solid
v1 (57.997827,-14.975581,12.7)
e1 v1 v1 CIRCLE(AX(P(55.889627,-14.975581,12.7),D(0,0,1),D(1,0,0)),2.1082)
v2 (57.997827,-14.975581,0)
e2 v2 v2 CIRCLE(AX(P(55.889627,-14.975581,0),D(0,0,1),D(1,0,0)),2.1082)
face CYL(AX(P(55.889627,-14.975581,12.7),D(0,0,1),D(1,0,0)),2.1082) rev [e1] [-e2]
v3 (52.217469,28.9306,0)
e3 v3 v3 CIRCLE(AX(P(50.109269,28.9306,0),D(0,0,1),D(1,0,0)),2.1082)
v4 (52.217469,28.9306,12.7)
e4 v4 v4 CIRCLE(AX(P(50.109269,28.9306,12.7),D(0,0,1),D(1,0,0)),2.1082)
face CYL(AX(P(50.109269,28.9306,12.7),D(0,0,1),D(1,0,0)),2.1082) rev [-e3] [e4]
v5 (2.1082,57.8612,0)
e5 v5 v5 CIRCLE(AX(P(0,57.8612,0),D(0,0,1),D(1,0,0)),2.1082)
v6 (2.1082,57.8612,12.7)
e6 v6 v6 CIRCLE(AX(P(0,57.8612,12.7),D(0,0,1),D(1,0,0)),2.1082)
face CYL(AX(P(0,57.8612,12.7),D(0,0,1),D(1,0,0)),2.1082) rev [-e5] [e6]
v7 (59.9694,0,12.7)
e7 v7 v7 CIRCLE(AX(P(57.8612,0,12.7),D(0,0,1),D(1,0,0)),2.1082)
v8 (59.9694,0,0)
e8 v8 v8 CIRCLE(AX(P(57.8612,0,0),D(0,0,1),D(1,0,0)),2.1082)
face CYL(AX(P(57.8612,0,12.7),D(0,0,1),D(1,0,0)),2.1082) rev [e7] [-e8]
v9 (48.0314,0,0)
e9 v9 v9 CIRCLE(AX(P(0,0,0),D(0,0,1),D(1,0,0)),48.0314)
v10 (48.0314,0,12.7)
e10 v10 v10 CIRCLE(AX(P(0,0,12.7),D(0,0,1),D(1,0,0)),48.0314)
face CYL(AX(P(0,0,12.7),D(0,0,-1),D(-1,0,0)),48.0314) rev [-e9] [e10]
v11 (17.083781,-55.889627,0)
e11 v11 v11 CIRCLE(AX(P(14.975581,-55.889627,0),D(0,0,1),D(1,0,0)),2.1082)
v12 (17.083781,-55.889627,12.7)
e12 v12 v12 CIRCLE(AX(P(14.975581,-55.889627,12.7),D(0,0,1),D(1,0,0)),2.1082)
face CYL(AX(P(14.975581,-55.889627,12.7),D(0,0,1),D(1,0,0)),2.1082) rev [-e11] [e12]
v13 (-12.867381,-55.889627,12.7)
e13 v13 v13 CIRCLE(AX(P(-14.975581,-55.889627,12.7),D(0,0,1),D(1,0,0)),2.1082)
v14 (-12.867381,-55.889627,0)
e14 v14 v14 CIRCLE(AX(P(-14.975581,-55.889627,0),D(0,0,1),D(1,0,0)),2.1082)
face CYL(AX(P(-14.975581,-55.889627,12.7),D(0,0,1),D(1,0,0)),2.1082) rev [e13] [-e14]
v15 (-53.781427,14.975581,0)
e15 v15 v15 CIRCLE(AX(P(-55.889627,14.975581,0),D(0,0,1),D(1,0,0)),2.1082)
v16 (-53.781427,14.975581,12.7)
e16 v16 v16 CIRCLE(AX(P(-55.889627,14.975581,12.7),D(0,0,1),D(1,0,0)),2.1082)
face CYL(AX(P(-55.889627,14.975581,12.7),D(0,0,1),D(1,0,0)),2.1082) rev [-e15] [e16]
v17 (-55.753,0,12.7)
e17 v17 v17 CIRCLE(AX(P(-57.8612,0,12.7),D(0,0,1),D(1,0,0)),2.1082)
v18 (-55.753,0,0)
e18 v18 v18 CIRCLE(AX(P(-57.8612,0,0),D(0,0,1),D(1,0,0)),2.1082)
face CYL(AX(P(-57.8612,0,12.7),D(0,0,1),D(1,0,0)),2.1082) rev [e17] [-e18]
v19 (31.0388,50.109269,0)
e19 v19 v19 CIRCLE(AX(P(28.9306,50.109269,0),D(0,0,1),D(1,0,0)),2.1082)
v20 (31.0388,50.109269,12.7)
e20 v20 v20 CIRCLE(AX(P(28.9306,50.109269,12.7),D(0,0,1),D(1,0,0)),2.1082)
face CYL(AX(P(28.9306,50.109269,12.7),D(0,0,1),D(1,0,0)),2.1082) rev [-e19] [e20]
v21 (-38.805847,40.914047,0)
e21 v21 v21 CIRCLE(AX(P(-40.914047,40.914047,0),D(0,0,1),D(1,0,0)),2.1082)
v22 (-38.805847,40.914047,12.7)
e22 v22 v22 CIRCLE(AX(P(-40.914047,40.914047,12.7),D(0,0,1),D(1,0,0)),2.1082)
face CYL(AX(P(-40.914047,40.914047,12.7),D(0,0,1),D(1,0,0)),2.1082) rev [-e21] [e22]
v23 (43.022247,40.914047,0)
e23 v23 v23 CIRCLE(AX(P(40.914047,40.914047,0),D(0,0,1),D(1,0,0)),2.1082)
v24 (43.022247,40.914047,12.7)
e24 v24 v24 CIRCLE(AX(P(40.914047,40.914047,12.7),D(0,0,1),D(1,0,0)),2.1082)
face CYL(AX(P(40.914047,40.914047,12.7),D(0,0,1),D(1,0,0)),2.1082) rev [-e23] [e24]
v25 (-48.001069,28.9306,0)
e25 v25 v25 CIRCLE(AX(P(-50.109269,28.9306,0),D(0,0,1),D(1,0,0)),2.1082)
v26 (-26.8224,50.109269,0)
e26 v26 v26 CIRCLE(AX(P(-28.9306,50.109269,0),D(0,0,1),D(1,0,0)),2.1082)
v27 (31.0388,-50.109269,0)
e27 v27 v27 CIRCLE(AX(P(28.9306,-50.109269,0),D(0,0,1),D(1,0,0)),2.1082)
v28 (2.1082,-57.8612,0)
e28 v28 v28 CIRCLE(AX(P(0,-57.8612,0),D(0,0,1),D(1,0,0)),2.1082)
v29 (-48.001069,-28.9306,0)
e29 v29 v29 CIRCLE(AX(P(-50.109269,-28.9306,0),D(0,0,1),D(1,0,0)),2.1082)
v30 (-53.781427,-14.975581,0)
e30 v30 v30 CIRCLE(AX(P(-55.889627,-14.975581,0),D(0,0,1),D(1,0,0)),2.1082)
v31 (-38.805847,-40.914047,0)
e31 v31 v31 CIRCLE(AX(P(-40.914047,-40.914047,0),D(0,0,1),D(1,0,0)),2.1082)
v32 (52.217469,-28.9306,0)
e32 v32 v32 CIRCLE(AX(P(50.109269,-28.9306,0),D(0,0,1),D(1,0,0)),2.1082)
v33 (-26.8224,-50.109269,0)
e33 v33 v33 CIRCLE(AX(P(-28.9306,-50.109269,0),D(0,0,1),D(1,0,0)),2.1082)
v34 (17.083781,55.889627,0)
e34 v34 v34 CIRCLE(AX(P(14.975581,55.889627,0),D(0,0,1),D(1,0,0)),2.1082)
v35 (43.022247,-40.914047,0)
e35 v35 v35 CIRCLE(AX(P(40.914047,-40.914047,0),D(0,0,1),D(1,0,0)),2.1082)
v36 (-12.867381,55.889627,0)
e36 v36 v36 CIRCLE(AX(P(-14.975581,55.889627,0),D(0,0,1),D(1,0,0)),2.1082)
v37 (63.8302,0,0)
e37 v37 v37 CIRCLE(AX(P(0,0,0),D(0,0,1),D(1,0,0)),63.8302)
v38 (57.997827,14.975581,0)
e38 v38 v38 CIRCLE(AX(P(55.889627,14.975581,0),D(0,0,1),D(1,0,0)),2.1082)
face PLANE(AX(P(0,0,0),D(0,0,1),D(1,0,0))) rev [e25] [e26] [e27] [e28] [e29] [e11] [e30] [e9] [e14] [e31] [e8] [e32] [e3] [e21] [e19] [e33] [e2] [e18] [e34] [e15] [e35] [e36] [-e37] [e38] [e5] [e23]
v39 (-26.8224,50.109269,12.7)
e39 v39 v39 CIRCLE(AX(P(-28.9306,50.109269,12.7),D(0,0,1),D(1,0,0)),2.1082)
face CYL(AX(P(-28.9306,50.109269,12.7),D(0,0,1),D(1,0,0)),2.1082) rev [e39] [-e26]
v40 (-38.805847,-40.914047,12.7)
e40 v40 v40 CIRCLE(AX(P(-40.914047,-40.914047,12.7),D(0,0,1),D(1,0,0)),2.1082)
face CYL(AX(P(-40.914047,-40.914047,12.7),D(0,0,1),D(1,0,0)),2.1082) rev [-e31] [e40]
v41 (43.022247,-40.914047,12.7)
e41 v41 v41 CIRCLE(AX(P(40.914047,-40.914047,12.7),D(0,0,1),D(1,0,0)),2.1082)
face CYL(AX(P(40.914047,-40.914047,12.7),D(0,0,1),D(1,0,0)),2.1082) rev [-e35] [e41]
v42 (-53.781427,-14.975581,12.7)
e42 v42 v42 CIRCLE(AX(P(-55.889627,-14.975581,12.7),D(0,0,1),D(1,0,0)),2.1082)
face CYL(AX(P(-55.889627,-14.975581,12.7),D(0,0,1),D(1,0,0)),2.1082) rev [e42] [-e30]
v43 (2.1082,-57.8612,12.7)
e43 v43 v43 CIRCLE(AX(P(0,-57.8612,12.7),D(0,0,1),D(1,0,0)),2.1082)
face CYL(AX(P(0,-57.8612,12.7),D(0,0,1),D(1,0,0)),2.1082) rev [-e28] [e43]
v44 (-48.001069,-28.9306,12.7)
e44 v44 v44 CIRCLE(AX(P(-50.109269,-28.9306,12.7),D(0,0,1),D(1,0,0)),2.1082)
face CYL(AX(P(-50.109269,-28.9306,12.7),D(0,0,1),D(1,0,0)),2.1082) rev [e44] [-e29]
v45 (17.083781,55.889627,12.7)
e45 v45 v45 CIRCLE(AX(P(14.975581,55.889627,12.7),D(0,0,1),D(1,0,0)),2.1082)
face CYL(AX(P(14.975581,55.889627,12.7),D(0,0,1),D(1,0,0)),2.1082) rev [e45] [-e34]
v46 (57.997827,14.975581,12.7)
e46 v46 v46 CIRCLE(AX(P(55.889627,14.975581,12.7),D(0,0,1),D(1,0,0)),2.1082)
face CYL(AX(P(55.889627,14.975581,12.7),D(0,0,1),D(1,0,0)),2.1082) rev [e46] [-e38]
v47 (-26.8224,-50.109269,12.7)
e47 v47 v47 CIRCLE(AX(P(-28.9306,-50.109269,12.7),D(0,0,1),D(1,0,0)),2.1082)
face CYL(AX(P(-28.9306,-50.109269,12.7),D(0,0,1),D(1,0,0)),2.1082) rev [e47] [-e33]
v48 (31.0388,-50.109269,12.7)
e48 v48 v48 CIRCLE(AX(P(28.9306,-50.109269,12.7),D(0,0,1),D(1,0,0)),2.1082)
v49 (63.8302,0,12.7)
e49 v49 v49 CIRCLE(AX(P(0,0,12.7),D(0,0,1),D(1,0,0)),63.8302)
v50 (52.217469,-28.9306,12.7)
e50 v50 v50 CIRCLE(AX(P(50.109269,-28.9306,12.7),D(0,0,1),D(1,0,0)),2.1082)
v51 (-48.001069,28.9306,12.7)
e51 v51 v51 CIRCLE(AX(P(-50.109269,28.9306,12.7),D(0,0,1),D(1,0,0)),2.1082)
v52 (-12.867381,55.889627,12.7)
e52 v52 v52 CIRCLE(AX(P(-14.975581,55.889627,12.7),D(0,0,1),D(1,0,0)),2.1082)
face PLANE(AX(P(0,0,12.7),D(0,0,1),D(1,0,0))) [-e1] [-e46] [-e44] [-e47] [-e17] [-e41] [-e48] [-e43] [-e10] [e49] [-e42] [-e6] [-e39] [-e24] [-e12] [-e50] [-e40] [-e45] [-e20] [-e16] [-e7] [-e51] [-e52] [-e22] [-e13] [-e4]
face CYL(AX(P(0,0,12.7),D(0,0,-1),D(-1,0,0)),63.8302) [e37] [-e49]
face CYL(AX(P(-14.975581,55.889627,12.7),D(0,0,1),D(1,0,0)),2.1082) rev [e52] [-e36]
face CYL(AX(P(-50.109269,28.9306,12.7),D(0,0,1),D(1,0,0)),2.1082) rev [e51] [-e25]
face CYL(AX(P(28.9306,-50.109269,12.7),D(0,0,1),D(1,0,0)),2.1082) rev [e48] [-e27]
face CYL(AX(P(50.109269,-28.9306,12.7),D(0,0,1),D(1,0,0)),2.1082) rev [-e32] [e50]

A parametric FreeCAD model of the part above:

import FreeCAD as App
import Part
import Sketcher
from FreeCAD import Vector
Q = App.Units.Quantity

doc = App.newDocument("Part")
params = doc.addObject("Spreadsheet::Sheet", "Params")
for row, (alias, value) in enumerate([
    ("sketch1_diameter", "5.026 in"),
    ("sketch1_diameter2", "3.782 in"),
    ("pad1_length", "0.5 in"),
    ("sketch2_diameter", "0.166 in"),
    ("hole_diameter", "0.166 in"),
], start=1):
    params.set(f"A{row}", alias)
    params.set(f"B{row}", "=" + value)
    params.setAlias(f"B{row}", alias)

body = doc.addObject("PartDesign::Body", "Body")

sketch1 = body.newObject("Sketcher::SketchObject", "Sketch")
sketch1.AttachmentSupport = (doc.getObject("XY_Plane"), [""])
sketch1.MapMode = "FlatFace"
sketch1.addGeometry(Part.Circle(Vector(0, 0, 0), Vector(0, 0, 1), 63.8302), False)
sketch1.addGeometry(Part.Circle(Vector(0, 0, 0), Vector(0, 0, 1), 48.0314), False)
sketch1.addConstraint(Sketcher.Constraint("Coincident", 0, 3, -1, 1))
sketch1.addConstraint(Sketcher.Constraint("Coincident", 1, 3, -1, 1))
sketch1.addConstraint(Sketcher.Constraint("Diameter", 0, Q("5.026 in")))
sketch1.addConstraint(Sketcher.Constraint("Diameter", 1, Q("3.782 in")))
sketch1.setExpression("Constraints[2]", "Params.sketch1_diameter")
sketch1.setExpression("Constraints[3]", "Params.sketch1_diameter2")
pad1 = body.newObject("PartDesign::Pad", "Pad")
pad1.Profile = sketch1
pad1.setExpression("Length", "Params.pad1_length")

sketch2 = body.newObject("Sketcher::SketchObject", "Sketch001")
sketch2.AttachmentSupport = (doc.getObject("XY_Plane"), [""])
sketch2.MapMode = "FlatFace"
sketch2.AttachmentOffset = App.Placement(Vector(0, 0, 0.5 * 25.4), App.Rotation())
sketch2.addGeometry(Part.Circle(Vector(0, 57.8612, 0), Vector(0, 0, 1), 2.1082), False)
sketch2.addConstraint(Sketcher.Constraint("PointOnObject", 0, 3, -2))
sketch2.addConstraint(Sketcher.Constraint("Diameter", 0, Q("0.166 in")))
sketch2.addConstraint(Sketcher.Constraint("DistanceY", -1, 1, 0, 3, Q("2.278 in")))
sketch2.setExpression("Constraints[1]", "Params.sketch2_diameter")
doc.recompute()
hole = body.newObject("PartDesign::Hole", "Hole")
hole.Profile = sketch2
hole.ThreadType = "None"
hole.setExpression("Diameter", "Params.hole_diameter")
hole.DepthType = "ThroughAll"
doc.recompute()

polarpattern = body.newObject("PartDesign::PolarPattern", "PolarPattern")
polarpattern.Originals = [hole]
polarpattern.Axis = (doc.getObject("Z_Axis"), [""])
polarpattern.Angle = 360
polarpattern.Occurrences = 24
body.Tip = polarpattern

doc.recompute()
